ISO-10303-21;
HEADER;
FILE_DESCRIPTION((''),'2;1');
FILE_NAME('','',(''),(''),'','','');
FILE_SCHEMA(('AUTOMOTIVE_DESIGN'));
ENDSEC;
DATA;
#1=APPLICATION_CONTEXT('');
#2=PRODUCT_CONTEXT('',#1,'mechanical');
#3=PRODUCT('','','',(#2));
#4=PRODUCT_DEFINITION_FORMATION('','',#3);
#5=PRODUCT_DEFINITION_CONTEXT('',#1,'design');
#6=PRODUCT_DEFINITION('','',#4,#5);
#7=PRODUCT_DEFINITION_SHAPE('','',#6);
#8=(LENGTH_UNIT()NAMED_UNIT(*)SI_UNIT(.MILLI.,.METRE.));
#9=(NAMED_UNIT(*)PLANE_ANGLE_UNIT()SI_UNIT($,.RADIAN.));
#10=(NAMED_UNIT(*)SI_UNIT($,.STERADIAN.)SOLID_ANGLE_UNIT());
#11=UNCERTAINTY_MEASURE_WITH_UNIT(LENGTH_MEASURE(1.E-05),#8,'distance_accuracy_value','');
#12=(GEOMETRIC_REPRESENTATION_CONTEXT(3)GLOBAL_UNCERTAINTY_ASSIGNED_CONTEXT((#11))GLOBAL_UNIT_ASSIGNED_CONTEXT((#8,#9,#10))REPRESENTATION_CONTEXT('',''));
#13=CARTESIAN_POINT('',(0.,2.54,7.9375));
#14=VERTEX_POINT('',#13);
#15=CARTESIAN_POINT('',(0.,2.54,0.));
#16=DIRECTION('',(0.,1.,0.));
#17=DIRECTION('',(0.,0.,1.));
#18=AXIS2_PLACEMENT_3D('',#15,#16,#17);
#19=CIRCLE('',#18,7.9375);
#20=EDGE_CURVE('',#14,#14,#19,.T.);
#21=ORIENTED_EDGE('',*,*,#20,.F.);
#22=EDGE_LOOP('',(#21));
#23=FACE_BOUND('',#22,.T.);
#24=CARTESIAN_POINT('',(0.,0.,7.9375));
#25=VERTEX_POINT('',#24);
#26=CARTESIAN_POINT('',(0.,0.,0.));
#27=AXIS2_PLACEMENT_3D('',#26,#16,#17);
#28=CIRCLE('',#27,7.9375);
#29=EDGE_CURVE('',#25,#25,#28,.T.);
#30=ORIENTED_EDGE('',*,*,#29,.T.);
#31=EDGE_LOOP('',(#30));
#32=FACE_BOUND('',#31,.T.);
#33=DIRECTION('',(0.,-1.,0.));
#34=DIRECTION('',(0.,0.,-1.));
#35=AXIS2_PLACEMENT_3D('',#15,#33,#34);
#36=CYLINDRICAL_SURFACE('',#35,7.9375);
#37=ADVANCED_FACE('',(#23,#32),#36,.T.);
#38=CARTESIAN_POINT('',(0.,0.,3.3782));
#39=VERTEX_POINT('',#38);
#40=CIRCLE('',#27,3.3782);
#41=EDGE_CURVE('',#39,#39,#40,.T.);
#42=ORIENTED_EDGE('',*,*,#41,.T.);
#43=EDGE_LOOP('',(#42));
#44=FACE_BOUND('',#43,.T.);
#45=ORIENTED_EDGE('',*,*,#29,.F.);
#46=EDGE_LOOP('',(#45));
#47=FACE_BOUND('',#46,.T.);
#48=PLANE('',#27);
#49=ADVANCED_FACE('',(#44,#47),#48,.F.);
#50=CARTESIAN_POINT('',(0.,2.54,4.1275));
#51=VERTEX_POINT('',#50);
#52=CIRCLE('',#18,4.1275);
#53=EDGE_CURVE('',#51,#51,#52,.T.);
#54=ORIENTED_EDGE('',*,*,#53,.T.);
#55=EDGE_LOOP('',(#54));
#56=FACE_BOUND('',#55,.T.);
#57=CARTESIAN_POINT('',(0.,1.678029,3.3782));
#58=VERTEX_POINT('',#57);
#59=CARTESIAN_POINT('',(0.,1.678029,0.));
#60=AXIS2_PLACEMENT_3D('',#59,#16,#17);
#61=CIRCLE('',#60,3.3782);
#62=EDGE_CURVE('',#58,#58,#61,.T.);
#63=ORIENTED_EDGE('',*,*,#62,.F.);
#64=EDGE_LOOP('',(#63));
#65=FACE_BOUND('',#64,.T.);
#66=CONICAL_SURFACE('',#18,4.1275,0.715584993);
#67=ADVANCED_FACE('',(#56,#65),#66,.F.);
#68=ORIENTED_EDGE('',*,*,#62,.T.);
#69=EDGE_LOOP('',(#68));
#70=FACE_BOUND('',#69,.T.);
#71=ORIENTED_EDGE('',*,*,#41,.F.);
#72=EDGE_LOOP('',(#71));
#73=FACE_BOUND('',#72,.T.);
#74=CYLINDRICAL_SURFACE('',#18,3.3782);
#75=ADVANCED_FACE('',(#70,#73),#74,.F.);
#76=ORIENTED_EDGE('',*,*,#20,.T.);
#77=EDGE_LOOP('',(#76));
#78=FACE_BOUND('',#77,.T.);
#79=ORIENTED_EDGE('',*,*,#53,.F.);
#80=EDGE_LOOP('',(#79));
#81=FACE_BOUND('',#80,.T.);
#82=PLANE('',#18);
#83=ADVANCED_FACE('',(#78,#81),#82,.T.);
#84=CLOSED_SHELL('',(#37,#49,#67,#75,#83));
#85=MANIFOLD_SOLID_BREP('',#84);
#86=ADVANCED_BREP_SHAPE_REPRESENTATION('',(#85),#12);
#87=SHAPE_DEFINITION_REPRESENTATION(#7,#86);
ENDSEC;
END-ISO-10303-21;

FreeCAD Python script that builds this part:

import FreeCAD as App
import Part
import Sketcher

V = App.Vector
Q = App.Units.Quantity

doc = App.newDocument("Part")
params = doc.addObject("Spreadsheet::Sheet", "Params")
for row, (alias, value) in enumerate([
    ("sketch1_diameter", "0.625 in"),
    ("pad1_length", "0.1 in"),
    ("sketch2_width", "0.1 in"),
    ("sketch2_height", "0.133 in"),
    ("groove_angle", "360 deg"),
], start=1):
    params.set(f"A{row}", alias)
    params.set(f"B{row}", "=" + value)
    params.setAlias(f"B{row}", alias)

body = doc.addObject("PartDesign::Body", "Body")

# Sketch on XZ plane
sketch1 = doc.addObject("Sketcher::SketchObject", "Sketch")
body.addObject(sketch1)
sketch1.AttachmentSupport = (doc.XZ_Plane, [""])
sketch1.MapMode = "FlatFace"
sketch1.addGeometry(Part.Circle(V(0, 0, 0), V(0, 0, 1), 7.9375), False)
sketch1.addConstraint([
    Sketcher.Constraint("Coincident", 0, 3, -1, 1),
    Sketcher.Constraint("Diameter", 0, Q("0.625 in")),
])
sketch1.setExpression("Constraints[1]", "Params.sketch1_diameter")
pad1 = doc.addObject("PartDesign::Pad", "Pad")
body.addObject(pad1)
pad1.Profile = sketch1
pad1.setExpression("Length", "Params.pad1_length")
pad1.Reversed = True

# Sketch on YZ plane
sketch2 = doc.addObject("Sketcher::SketchObject", "Sketch001")
body.addObject(sketch2)
sketch2.AttachmentSupport = (doc.YZ_Plane, [""])
sketch2.MapMode = "FlatFace"
sketch2.addGeometry([
    Part.LineSegment(V(0, 0, 0), V(2.54, 0, 0)),  # 0
    Part.LineSegment(V(2.54, 0, 0), V(2.54, 4.1275, 0)),  # 1
    Part.LineSegment(V(2.54, 4.1275, 0), V(1.678029, 3.3782, 0)),  # 2
    Part.LineSegment(V(1.678029, 3.3782, 0), V(0, 3.3782, 0)),  # 3
    Part.LineSegment(V(0, 3.3782, 0), V(0, 0, 0)),  # 4
], False)
sketch2.addConstraint([
    Sketcher.Constraint("Coincident", 0, 2, 1, 1),
    Sketcher.Constraint("Coincident", 1, 2, 2, 1),
    Sketcher.Constraint("Coincident", 2, 2, 3, 1),
    Sketcher.Constraint("Coincident", 3, 2, 4, 1),
    Sketcher.Constraint("Coincident", 4, 2, 0, 1),
    Sketcher.Constraint("Horizontal", 0),
    Sketcher.Constraint("Vertical", 1),
    Sketcher.Constraint("Horizontal", 3),
    Sketcher.Constraint("Vertical", 4),
    Sketcher.Constraint("Coincident", 4, 2, -1, 1),
    Sketcher.Constraint("DistanceX", 0, 1, 0, 2, Q("0.1 in")),
    Sketcher.Constraint("Angle", 2, Q("-139 deg")),
    Sketcher.Constraint("DistanceY", 4, 2, 4, 1, Q("0.133 in")),
    Sketcher.Constraint("DistanceY", 1, 1, 1, 2, Q("0.1625 in")),
])
sketch2.setExpression("Constraints[10]", "Params.sketch2_width")
sketch2.setExpression("Constraints[12]", "Params.sketch2_height")
groove = doc.addObject("PartDesign::Groove", "Groove")
body.addObject(groove)
groove.Profile = sketch2
groove.ReferenceAxis = (sketch2, ["H_Axis"])
groove.setExpression("Angle", "Params.groove_angle")

doc.recompute()
